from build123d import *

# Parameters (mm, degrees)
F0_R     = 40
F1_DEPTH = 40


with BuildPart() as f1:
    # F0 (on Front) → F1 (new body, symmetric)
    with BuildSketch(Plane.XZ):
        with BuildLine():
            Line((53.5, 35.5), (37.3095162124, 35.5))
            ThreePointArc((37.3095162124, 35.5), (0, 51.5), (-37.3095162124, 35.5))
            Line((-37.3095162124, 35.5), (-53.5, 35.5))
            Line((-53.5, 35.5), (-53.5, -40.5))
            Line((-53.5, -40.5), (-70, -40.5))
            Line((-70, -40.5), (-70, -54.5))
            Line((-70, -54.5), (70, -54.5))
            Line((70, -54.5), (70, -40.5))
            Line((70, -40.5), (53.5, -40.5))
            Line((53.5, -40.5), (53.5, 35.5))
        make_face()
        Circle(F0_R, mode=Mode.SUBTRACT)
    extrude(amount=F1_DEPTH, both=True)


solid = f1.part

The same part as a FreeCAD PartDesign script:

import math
import FreeCAD as App
import Part
import Sketcher

doc = App.newDocument("Part")
body = doc.addObject("PartDesign::Body", "Body")

sketch1 = body.newObject("Sketcher::SketchObject", "Sketch")
sketch1.AttachmentSupport = (doc.getObject("XZ_Plane"), [""])
sketch1.MapMode = "FlatFace"
sketch1.addGeometry(Part.LineSegment(App.Vector(54, 36, 0), App.Vector(37, 36, 0)), False)
sketch1.addGeometry(Part.ArcOfCircle(Part.Circle(App.Vector(0, 0, 0), App.Vector(0, 0, 1), 52), math.radians(44), math.radians(136)), False)
sketch1.addGeometry(Part.LineSegment(App.Vector(-37, 36, 0), App.Vector(-54, 36, 0)), False)
sketch1.addGeometry(Part.LineSegment(App.Vector(-54, 36, 0), App.Vector(-54, -40, 0)), False)
sketch1.addGeometry(Part.LineSegment(App.Vector(-54, -40, 0), App.Vector(-70, -40, 0)), False)
sketch1.addGeometry(Part.LineSegment(App.Vector(-70, -40, 0), App.Vector(-70, -54, 0)), False)
sketch1.addGeometry(Part.LineSegment(App.Vector(-70, -54, 0), App.Vector(70, -54, 0)), False)
sketch1.addGeometry(Part.LineSegment(App.Vector(70, -54, 0), App.Vector(70, -40, 0)), False)
sketch1.addGeometry(Part.LineSegment(App.Vector(70, -40, 0), App.Vector(54, -40, 0)), False)
sketch1.addGeometry(Part.LineSegment(App.Vector(54, -40, 0), App.Vector(54, 36, 0)), False)
sketch1.addGeometry(Part.Circle(App.Vector(0, 0, 0), App.Vector(0, 0, 1), 40), False)
sketch1.addConstraint(Sketcher.Constraint("Coincident", 0, 2, 1, 1))
sketch1.addConstraint(Sketcher.Constraint("Coincident", 1, 2, 2, 1))
sketch1.addConstraint(Sketcher.Constraint("Coincident", 2, 2, 3, 1))
sketch1.addConstraint(Sketcher.Constraint("Coincident", 3, 2, 4, 1))
sketch1.addConstraint(Sketcher.Constraint("Coincident", 4, 2, 5, 1))
sketch1.addConstraint(Sketcher.Constraint("Coincident", 5, 2, 6, 1))
sketch1.addConstraint(Sketcher.Constraint("Coincident", 6, 2, 7, 1))
sketch1.addConstraint(Sketcher.Constraint("Coincident", 7, 2, 8, 1))
sketch1.addConstraint(Sketcher.Constraint("Coincident", 8, 2, 9, 1))
sketch1.addConstraint(Sketcher.Constraint("Coincident", 9, 2, 0, 1))
sketch1.addConstraint(Sketcher.Constraint("Horizontal", 0))
sketch1.addConstraint(Sketcher.Constraint("Horizontal", 2))
sketch1.addConstraint(Sketcher.Constraint("Vertical", 3))
sketch1.addConstraint(Sketcher.Constraint("Horizontal", 4))
sketch1.addConstraint(Sketcher.Constraint("Vertical", 5))
sketch1.addConstraint(Sketcher.Constraint("Horizontal", 6))
sketch1.addConstraint(Sketcher.Constraint("Vertical", 7))
sketch1.addConstraint(Sketcher.Constraint("Horizontal", 8))
sketch1.addConstraint(Sketcher.Constraint("Vertical", 9))
sketch1.addConstraint(Sketcher.Constraint("Coincident", 1, 3, -1, 1))
sketch1.addConstraint(Sketcher.Constraint("Coincident", 10, 3, -1, 1))
sketch1.addConstraint(Sketcher.Constraint("Symmetric", 4, 2, 7, 2, -2))
sketch1.addConstraint(Sketcher.Constraint("Symmetric", 2, 2, 9, 2, -2))
sketch1.addConstraint(Sketcher.Constraint("Diameter", 10, 80.0))
sketch1.addConstraint(Sketcher.Constraint("Radius", 1, 51.5))
sketch1.addConstraint(Sketcher.Constraint("DistanceX", 6, 1, 6, 2, 140.0))
sketch1.addConstraint(Sketcher.Constraint("DistanceY", 3, 2, 3, 1, 76.0))
sketch1.addConstraint(Sketcher.Constraint("DistanceY", 5, 2, 5, 1, 14.0))
sketch1.addConstraint(Sketcher.Constraint("DistanceX", 4, 2, 4, 1, 16.5))
sketch1.addConstraint(Sketcher.Constraint("DistanceY", -1, 1, 0, 2, 35.5))
pad1 = body.newObject("PartDesign::Pad", "Pad")
pad1.Profile = sketch1
pad1.Length = 80
pad1.Midplane = True

doc.recompute()
